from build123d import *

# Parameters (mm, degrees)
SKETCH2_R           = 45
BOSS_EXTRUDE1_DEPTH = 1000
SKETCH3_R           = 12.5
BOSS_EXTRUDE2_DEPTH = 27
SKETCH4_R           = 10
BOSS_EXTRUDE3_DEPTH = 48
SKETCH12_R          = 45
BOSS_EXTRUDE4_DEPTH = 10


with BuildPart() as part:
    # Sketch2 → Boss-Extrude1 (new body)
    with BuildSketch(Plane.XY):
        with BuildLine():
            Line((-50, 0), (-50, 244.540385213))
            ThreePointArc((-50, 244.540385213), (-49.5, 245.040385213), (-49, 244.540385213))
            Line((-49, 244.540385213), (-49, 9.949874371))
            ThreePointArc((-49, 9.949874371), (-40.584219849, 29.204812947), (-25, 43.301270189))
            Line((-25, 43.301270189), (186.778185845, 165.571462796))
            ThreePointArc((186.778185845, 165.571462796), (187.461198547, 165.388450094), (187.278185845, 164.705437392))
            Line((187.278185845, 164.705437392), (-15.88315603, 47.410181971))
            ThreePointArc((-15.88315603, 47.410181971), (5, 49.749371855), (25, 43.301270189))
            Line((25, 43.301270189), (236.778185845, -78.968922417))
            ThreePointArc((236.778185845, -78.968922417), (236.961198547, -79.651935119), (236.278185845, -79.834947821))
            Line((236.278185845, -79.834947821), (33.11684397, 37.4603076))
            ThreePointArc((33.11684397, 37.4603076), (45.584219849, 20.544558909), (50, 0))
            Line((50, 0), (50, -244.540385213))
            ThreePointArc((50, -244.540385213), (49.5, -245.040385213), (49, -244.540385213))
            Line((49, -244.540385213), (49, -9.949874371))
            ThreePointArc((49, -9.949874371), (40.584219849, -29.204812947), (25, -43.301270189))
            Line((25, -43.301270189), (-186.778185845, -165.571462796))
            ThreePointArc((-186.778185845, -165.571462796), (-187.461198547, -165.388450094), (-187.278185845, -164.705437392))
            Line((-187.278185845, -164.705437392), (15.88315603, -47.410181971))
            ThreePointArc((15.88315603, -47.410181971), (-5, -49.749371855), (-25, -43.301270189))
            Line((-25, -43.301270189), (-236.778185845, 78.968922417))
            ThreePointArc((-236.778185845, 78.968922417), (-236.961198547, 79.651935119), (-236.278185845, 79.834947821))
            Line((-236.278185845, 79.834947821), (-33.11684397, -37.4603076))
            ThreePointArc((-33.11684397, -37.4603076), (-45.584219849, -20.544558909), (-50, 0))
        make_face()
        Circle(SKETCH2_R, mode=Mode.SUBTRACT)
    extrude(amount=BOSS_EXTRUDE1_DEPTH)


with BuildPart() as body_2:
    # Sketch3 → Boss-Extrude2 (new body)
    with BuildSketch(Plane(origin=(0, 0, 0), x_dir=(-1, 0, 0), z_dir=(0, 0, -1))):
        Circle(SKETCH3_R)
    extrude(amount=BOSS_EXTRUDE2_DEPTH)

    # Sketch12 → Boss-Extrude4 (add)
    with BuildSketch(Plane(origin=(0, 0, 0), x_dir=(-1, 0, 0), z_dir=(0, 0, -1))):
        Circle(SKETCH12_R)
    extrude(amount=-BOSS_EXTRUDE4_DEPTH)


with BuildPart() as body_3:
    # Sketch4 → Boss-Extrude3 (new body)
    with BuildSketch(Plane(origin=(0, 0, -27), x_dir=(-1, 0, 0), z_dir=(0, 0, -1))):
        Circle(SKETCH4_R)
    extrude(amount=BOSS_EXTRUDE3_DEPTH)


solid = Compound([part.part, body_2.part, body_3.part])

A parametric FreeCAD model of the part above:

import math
import FreeCAD as App
import Part
import Sketcher
from FreeCAD import Vector
Q = App.Units.Quantity

doc = App.newDocument("Part")
body = doc.addObject("PartDesign::Body", "Body")

sketch1 = body.newObject("Sketcher::SketchObject", "Sketch")
sketch1.AttachmentSupport = (doc.getObject("XY_Plane"), [""])
sketch1.MapMode = "FlatFace"
sketch1.addGeometry([
    Part.LineSegment(Vector(-50, 244.540385, 0), Vector(-50, 0, 0)),
    Part.ArcOfCircle(Part.Circle(Vector(0, 0, 0), Vector(0, 0, 1), 50), math.radians(180), math.radians(228.521659)),
    Part.LineSegment(Vector(-33.116844, -37.460308, 0), Vector(-236.278186, 79.834948, 0)),
    Part.ArcOfCircle(Part.Circle(Vector(-236.528186, 79.401935, 0), Vector(0, 0, 1), 0.5), math.radians(60), math.radians(240)),
    Part.LineSegment(Vector(-236.778186, 78.968922, 0), Vector(-25, -43.30127, 0)),
    Part.ArcOfCircle(Part.Circle(Vector(0, 0, 0), Vector(0, 0, 1), 50), math.radians(-120), math.radians(-71.478341)),
    Part.LineSegment(Vector(15.883156, -47.410182, 0), Vector(-187.278186, -164.705437, 0)),
    Part.ArcOfCircle(Part.Circle(Vector(-187.028186, -165.13845, 0), Vector(0, 0, 1), 0.5), math.radians(120), math.radians(300)),
    Part.LineSegment(Vector(-186.778186, -165.571463, 0), Vector(25, -43.30127, 0)),
    Part.ArcOfCircle(Part.Circle(Vector(0, 0, 0), Vector(0, 0, 1), 50), math.radians(-60), math.radians(-11.478341)),
    Part.LineSegment(Vector(49, -9.949874, 0), Vector(49, -244.540385, 0)),
    Part.ArcOfCircle(Part.Circle(Vector(49.5, -244.540385, 0), Vector(0, 0, 1), 0.5), math.radians(180), math.radians(360)),
    Part.LineSegment(Vector(50, -244.540385, 0), Vector(50, 0, 0)),
    Part.ArcOfCircle(Part.Circle(Vector(0, 0, 0), Vector(0, 0, 1), 50), math.radians(0), math.radians(48.521659)),
    Part.LineSegment(Vector(33.116844, 37.460308, 0), Vector(236.278186, -79.834948, 0)),
    Part.ArcOfCircle(Part.Circle(Vector(236.528186, -79.401935, 0), Vector(0, 0, 1), 0.5), math.radians(-120), math.radians(60)),
    Part.LineSegment(Vector(236.778186, -78.968922, 0), Vector(25, 43.30127, 0)),
    Part.ArcOfCircle(Part.Circle(Vector(0, 0, 0), Vector(0, 0, 1), 50), math.radians(60), math.radians(108.521659)),
    Part.LineSegment(Vector(-15.883156, 47.410182, 0), Vector(187.278186, 164.705437, 0)),
    Part.ArcOfCircle(Part.Circle(Vector(187.028186, 165.13845, 0), Vector(0, 0, 1), 0.5), math.radians(-60), math.radians(120)),
    Part.LineSegment(Vector(186.778186, 165.571463, 0), Vector(-25, 43.30127, 0)),
    Part.ArcOfCircle(Part.Circle(Vector(0, 0, 0), Vector(0, 0, 1), 50), math.radians(120), math.radians(168.521659)),
    Part.LineSegment(Vector(-49, 9.949874, 0), Vector(-49, 244.540385, 0)),
    Part.ArcOfCircle(Part.Circle(Vector(-49.5, 244.540385, 0), Vector(0, 0, 1), 0.5), math.radians(0), math.radians(180)),
    Part.Circle(Vector(0, 0, 0), Vector(0, 0, 1), 45),
], False)
sketch1.addConstraint([
    Sketcher.Constraint("Tangent", 0, 2, 1, 1),
    Sketcher.Constraint("Coincident", 1, 2, 2, 1),
    Sketcher.Constraint("Tangent", 2, 2, 3, 1),
    Sketcher.Constraint("Tangent", 3, 2, 4, 1),
    Sketcher.Constraint("Tangent", 4, 2, 5, 1),
    Sketcher.Constraint("Coincident", 5, 2, 6, 1),
    Sketcher.Constraint("Tangent", 6, 2, 7, 1),
    Sketcher.Constraint("Tangent", 7, 2, 8, 1),
    Sketcher.Constraint("Tangent", 8, 2, 9, 1),
    Sketcher.Constraint("Coincident", 9, 2, 10, 1),
    Sketcher.Constraint("Tangent", 10, 2, 11, 1),
    Sketcher.Constraint("Tangent", 11, 2, 12, 1),
    Sketcher.Constraint("Tangent", 12, 2, 13, 1),
    Sketcher.Constraint("Coincident", 13, 2, 14, 1),
    Sketcher.Constraint("Tangent", 14, 2, 15, 1),
    Sketcher.Constraint("Tangent", 15, 2, 16, 1),
    Sketcher.Constraint("Tangent", 16, 2, 17, 1),
    Sketcher.Constraint("Coincident", 17, 2, 18, 1),
    Sketcher.Constraint("Tangent", 18, 2, 19, 1),
    Sketcher.Constraint("Tangent", 19, 2, 20, 1),
    Sketcher.Constraint("Tangent", 20, 2, 21, 1),
    Sketcher.Constraint("Coincident", 21, 2, 22, 1),
    Sketcher.Constraint("Tangent", 22, 2, 23, 1),
    Sketcher.Constraint("Tangent", 23, 2, 0, 1),
    Sketcher.Constraint("Vertical", 0),
    Sketcher.Constraint("Vertical", 10),
    Sketcher.Constraint("Vertical", 12),
    Sketcher.Constraint("Vertical", 22),
    Sketcher.Constraint("Coincident", 1, 3, -1, 1),
    Sketcher.Constraint("Coincident", 5, 3, -1, 1),
    Sketcher.Constraint("Coincident", 9, 3, -1, 1),
    Sketcher.Constraint("Coincident", 13, 3, -1, 1),
    Sketcher.Constraint("Coincident", 17, 3, -1, 1),
    Sketcher.Constraint("Coincident", 21, 3, -1, 1),
    Sketcher.Constraint("Coincident", 24, 3, -1, 1),
    Sketcher.Constraint("Equal", 1, 5),
    Sketcher.Constraint("Equal", 3, 7),
    Sketcher.Constraint("Equal", 5, 9),
    Sketcher.Constraint("Equal", 7, 11),
    Sketcher.Constraint("Equal", 9, 13),
    Sketcher.Constraint("Equal", 11, 15),
    Sketcher.Constraint("Equal", 13, 17),
    Sketcher.Constraint("Equal", 15, 19),
    Sketcher.Constraint("Equal", 17, 21),
    Sketcher.Constraint("Equal", 19, 23),
    Sketcher.Constraint("Symmetric", 3, 3, 15, 3, -1, 1),
    Sketcher.Constraint("Symmetric", 7, 3, 19, 3, -1, 1),
    Sketcher.Constraint("Parallel", 2, 4),
    Sketcher.Constraint("Parallel", 6, 8),
    Sketcher.Constraint("Parallel", 4, 14),
    Sketcher.Constraint("Parallel", 8, 18),
    Sketcher.Constraint("Horizontal", 4, 2, 8, 2),
    Sketcher.Constraint("Equal", 0, 12),
    Sketcher.Constraint("Equal", 2, 6),
    Sketcher.Constraint("Diameter", 24, 90.0),
    Sketcher.Constraint("Radius", 1, 50.0),
    Sketcher.Constraint("Radius", 3, 0.5),
    Sketcher.Constraint("Angle", 2, Q("150 deg")),
    Sketcher.Constraint("DistanceY", 10, 2, 10, 1, 234.590511),
    Sketcher.Constraint("Distance", 2, 234.590511),
])
pad1 = body.newObject("PartDesign::Pad", "Pad")
pad1.Profile = sketch1
pad1.Length = 1000
body2 = doc.addObject("PartDesign::Body", "Body001")

sketch2 = body2.newObject("Sketcher::SketchObject", "Sketch001")
sketch2.AttachmentSupport = (doc.getObject("XY_Plane001"), [""])
sketch2.MapMode = "FlatFace"
sketch2.addGeometry(Part.Circle(Vector(0, 0, 0), Vector(0, 0, 1), 12.5), False)
sketch2.addConstraint([
    Sketcher.Constraint("Coincident", 0, 3, -1, 1),
    Sketcher.Constraint("Diameter", 0, 25.0),
])
pad2 = body2.newObject("PartDesign::Pad", "Pad001")
pad2.Profile = sketch2
pad2.Length = 27
pad2.Reversed = True

sketch3 = body2.newObject("Sketcher::SketchObject", "Sketch002")
sketch3.AttachmentSupport = (doc.getObject("XY_Plane001"), [""])
sketch3.MapMode = "FlatFace"
sketch3.addGeometry(Part.Circle(Vector(0, 0, 0), Vector(0, 0, 1), 45), False)
sketch3.addConstraint([
    Sketcher.Constraint("Coincident", 0, 3, -1, 1),
    Sketcher.Constraint("Diameter", 0, 90.0),
])
pad3 = body2.newObject("PartDesign::Pad", "Pad002")
pad3.Profile = sketch3
pad3.Length = 10
body3 = doc.addObject("PartDesign::Body", "Body002")

sketch4 = body3.newObject("Sketcher::SketchObject", "Sketch003")
sketch4.AttachmentSupport = (doc.getObject("XY_Plane002"), [""])
sketch4.MapMode = "FlatFace"
sketch4.AttachmentOffset = App.Placement(Vector(0, 0, -27), App.Rotation())
sketch4.addGeometry(Part.Circle(Vector(0, 0, 0), Vector(0, 0, 1), 10), False)
sketch4.addConstraint([
    Sketcher.Constraint("Coincident", 0, 3, -1, 1),
    Sketcher.Constraint("Diameter", 0, 20.0),
])
pad4 = body3.newObject("PartDesign::Pad", "Pad003")
pad4.Profile = sketch4
pad4.Length = 48
pad4.Reversed = True

doc.recompute()
